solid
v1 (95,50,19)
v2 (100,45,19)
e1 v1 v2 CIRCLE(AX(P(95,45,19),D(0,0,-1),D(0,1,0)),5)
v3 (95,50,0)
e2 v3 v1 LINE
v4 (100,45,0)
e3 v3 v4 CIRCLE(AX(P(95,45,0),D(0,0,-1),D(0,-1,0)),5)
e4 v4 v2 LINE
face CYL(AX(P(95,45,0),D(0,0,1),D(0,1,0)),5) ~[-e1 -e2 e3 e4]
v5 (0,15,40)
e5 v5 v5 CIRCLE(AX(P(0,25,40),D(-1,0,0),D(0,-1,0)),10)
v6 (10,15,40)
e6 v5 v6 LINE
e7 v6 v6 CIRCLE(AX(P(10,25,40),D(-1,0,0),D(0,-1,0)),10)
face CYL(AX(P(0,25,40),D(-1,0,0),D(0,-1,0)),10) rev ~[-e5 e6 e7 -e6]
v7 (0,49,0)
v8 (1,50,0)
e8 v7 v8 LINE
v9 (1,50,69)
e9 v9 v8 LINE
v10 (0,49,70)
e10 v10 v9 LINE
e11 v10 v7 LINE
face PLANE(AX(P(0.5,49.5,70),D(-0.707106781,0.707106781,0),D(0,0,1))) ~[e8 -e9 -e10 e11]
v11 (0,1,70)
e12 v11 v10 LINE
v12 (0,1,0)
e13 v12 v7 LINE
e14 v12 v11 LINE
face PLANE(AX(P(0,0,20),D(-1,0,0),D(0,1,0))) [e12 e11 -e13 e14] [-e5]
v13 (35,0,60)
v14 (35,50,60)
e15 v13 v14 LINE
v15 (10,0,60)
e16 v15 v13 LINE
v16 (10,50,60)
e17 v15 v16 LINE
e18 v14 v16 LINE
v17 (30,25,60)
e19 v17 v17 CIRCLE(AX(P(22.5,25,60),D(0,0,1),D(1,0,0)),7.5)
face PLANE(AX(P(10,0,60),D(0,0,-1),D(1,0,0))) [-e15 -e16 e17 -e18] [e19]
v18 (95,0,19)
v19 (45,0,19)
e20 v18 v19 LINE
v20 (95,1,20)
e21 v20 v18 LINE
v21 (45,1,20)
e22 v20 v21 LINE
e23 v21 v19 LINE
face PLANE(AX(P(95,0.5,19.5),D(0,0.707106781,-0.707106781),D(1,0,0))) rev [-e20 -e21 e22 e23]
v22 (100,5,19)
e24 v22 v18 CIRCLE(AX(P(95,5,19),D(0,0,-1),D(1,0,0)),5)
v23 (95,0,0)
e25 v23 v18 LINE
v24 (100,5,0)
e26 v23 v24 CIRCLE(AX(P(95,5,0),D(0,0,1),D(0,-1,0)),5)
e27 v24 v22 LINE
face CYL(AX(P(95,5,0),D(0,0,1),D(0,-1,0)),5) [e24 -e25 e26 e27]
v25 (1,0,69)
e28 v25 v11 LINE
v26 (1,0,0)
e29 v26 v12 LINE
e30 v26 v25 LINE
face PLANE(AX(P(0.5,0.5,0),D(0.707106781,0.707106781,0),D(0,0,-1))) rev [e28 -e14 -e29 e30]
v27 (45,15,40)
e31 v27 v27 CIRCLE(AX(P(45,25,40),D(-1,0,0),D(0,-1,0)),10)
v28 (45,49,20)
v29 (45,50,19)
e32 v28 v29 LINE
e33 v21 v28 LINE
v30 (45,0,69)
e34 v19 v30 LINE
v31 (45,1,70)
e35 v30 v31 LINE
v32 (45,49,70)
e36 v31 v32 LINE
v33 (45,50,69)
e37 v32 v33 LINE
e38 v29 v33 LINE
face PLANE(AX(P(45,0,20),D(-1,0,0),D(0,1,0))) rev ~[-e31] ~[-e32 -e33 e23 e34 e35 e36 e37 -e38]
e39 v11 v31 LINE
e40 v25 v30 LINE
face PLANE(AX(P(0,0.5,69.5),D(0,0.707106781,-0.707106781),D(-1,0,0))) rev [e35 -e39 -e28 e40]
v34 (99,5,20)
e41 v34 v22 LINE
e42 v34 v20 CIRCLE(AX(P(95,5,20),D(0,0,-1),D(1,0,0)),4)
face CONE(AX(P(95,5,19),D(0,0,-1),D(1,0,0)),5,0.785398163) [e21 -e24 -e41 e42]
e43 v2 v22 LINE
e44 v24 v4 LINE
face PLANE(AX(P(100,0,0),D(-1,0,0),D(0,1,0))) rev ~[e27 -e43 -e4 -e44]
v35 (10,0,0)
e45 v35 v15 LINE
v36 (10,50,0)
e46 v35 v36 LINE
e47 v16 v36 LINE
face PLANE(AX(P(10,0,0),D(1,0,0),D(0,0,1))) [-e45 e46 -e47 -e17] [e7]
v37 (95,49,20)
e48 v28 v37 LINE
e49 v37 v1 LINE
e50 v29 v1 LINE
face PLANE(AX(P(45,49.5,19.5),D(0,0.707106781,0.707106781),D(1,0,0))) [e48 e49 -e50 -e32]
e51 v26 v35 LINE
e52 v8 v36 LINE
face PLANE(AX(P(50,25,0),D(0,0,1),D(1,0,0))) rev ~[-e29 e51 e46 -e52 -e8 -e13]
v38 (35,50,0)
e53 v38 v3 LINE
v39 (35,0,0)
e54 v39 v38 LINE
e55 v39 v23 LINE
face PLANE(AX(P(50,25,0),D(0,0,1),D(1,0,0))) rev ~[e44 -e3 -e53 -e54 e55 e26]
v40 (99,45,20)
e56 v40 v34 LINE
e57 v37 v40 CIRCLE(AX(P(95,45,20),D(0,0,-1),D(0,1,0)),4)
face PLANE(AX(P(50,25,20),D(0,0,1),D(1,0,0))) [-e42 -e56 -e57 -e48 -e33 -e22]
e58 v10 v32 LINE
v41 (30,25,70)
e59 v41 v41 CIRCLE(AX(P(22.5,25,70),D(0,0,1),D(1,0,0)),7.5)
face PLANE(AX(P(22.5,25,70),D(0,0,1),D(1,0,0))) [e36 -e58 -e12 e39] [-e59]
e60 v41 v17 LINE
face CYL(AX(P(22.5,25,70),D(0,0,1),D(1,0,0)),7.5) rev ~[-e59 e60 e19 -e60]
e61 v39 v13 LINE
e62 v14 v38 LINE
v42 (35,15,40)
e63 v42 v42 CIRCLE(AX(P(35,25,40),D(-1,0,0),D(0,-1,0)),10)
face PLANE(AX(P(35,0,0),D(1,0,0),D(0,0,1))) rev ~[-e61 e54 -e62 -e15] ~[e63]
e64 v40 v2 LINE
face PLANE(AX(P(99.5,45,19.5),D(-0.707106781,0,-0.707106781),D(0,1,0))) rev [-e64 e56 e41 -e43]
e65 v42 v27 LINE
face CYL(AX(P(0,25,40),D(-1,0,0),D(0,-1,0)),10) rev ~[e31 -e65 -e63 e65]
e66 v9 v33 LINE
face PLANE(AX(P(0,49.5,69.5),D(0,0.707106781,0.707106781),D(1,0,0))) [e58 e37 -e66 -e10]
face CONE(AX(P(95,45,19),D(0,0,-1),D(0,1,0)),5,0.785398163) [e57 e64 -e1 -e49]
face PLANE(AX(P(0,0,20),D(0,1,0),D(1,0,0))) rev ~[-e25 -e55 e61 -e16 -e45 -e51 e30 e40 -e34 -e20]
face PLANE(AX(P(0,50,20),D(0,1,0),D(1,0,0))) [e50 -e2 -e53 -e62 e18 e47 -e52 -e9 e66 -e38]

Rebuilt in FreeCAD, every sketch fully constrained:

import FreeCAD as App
import Part
import Sketcher

V = App.Vector


def edges_at(feature, points):
    """Names of the edges that pass closest to the given points."""
    edges = feature.Shape.Edges
    near = lambda p: min(range(len(edges)), key=lambda i: edges[i].distToShape(Part.Vertex(*p))[0])
    return sorted({f"Edge{near(p) + 1}" for p in points})

doc = App.newDocument("Part")
params = doc.addObject("Spreadsheet::Sheet", "Params")
for row, (alias, value) in enumerate([
    ("sketch1_width", "100 mm"),
    ("sketch1_height", "50 mm"),
    ("pad1_length", "20 mm"),
    ("sketch2_width", "45 mm"),
    ("sketch2_height", "50 mm"),
    ("pad2_length", "50 mm"),
    ("sketch3_width", "25 mm"),
    ("sketch3_height", "60 mm"),
    ("sketch4_diameter", "20 mm"),
    ("sketch5_diameter", "15 mm"),
    ("fillet_radius", "5 mm"),
    ("chamfer_size", "1 mm"),
], start=1):
    params.set(f"A{row}", alias)
    params.set(f"B{row}", "=" + value)
    params.setAlias(f"B{row}", alias)

body = doc.addObject("PartDesign::Body", "Body")

# Sketch on XY plane
sketch1 = body.newObject("Sketcher::SketchObject", "Sketch")
sketch1.AttachmentSupport = (doc.getObject("XY_Plane"), [""])
sketch1.MapMode = "FlatFace"
sketch1.addGeometry([
    Part.LineSegment(V(0, 50, 0), V(0, 0, 0)),
    Part.LineSegment(V(0, 0, 0), V(100, 0, 0)),
    Part.LineSegment(V(100, 0, 0), V(100, 50, 0)),
    Part.LineSegment(V(100, 50, 0), V(0, 50, 0)),
], False)
sketch1.addConstraint([
    Sketcher.Constraint("Coincident", 0, 2, 1, 1),
    Sketcher.Constraint("Coincident", 1, 2, 2, 1),
    Sketcher.Constraint("Coincident", 2, 2, 3, 1),
    Sketcher.Constraint("Coincident", 3, 2, 0, 1),
    Sketcher.Constraint("Vertical", 0),
    Sketcher.Constraint("Horizontal", 1),
    Sketcher.Constraint("Vertical", 2),
    Sketcher.Constraint("Horizontal", 3),
    Sketcher.Constraint("Coincident", 0, 2, -1, 1),
    Sketcher.Constraint("DistanceX", 1, 1, 1, 2, 100.0),
    Sketcher.Constraint("DistanceY", 0, 2, 0, 1, 50.0),
])
sketch1.setExpression("Constraints[9]", "Params.sketch1_width")
sketch1.setExpression("Constraints[10]", "Params.sketch1_height")
pad1 = body.newObject("PartDesign::Pad", "Pad")
pad1.Profile = sketch1
pad1.setExpression("Length", "Params.pad1_length")

# Sketch on XY plane
sketch2 = body.newObject("Sketcher::SketchObject", "Sketch001")
sketch2.AttachmentSupport = (doc.getObject("XY_Plane"), [""])
sketch2.MapMode = "FlatFace"
sketch2.AttachmentOffset = App.Placement(V(0, 0, 20), App.Rotation())
sketch2.addGeometry([
    Part.LineSegment(V(0, 50, 0), V(0, 0, 0)),
    Part.LineSegment(V(0, 0, 0), V(45, 0, 0)),
    Part.LineSegment(V(45, 0, 0), V(45, 50, 0)),
    Part.LineSegment(V(45, 50, 0), V(0, 50, 0)),
], False)
sketch2.addConstraint([
    Sketcher.Constraint("Coincident", 0, 2, 1, 1),
    Sketcher.Constraint("Coincident", 1, 2, 2, 1),
    Sketcher.Constraint("Coincident", 2, 2, 3, 1),
    Sketcher.Constraint("Coincident", 3, 2, 0, 1),
    Sketcher.Constraint("Vertical", 0),
    Sketcher.Constraint("Horizontal", 1),
    Sketcher.Constraint("Vertical", 2),
    Sketcher.Constraint("Horizontal", 3),
    Sketcher.Constraint("Coincident", 0, 2, -1, 1),
    Sketcher.Constraint("DistanceX", 1, 1, 1, 2, 45.0),
    Sketcher.Constraint("DistanceY", 0, 2, 0, 1, 50.0),
])
sketch2.setExpression("Constraints[9]", "Params.sketch2_width")
sketch2.setExpression("Constraints[10]", "Params.sketch2_height")
pad2 = body.newObject("PartDesign::Pad", "Pad001")
pad2.Profile = sketch2
pad2.setExpression("Length", "Params.pad2_length")

# Sketch on XZ plane
sketch3 = body.newObject("Sketcher::SketchObject", "Sketch002")
sketch3.AttachmentSupport = (doc.getObject("XZ_Plane"), [""])
sketch3.MapMode = "FlatFace"
sketch3.addGeometry([
    Part.LineSegment(V(10, 60, 0), V(10, 0, 0)),
    Part.LineSegment(V(10, 0, 0), V(35, 0, 0)),
    Part.LineSegment(V(35, 0, 0), V(35, 60, 0)),
    Part.LineSegment(V(35, 60, 0), V(10, 60, 0)),
], False)
sketch3.addConstraint([
    Sketcher.Constraint("Coincident", 0, 2, 1, 1),
    Sketcher.Constraint("Coincident", 1, 2, 2, 1),
    Sketcher.Constraint("Coincident", 2, 2, 3, 1),
    Sketcher.Constraint("Coincident", 3, 2, 0, 1),
    Sketcher.Constraint("Vertical", 0),
    Sketcher.Constraint("Horizontal", 1),
    Sketcher.Constraint("Vertical", 2),
    Sketcher.Constraint("Horizontal", 3),
    Sketcher.Constraint("PointOnObject", 0, 2, -1),
    Sketcher.Constraint("DistanceX", 1, 1, 1, 2, 25.0),
    Sketcher.Constraint("DistanceY", 0, 2, 0, 1, 60.0),
    Sketcher.Constraint("DistanceX", -1, 1, 0, 2, 10.0),
])
sketch3.setExpression("Constraints[9]", "Params.sketch3_width")
sketch3.setExpression("Constraints[10]", "Params.sketch3_height")
pocket1 = body.newObject("PartDesign::Pocket", "Pocket")
pocket1.Profile = sketch3
pocket1.Type = "ThroughAll"

# Sketch on YZ plane
sketch4 = body.newObject("Sketcher::SketchObject", "Sketch003")
sketch4.AttachmentSupport = (doc.getObject("YZ_Plane"), [""])
sketch4.MapMode = "FlatFace"
sketch4.addGeometry(Part.Circle(V(25, 40, 0), V(0, 0, 1), 10), False)
sketch4.addConstraint([
    Sketcher.Constraint("Diameter", 0, 20.0),
    Sketcher.Constraint("DistanceX", -1, 1, 0, 3, 25.0),
    Sketcher.Constraint("DistanceY", -1, 1, 0, 3, 40.0),
])
sketch4.setExpression("Constraints[0]", "Params.sketch4_diameter")
pocket2 = body.newObject("PartDesign::Pocket", "Pocket001")
pocket2.Profile = sketch4
pocket2.Type = "ThroughAll"
pocket2.Reversed = True

# Sketch on XY plane
sketch5 = body.newObject("Sketcher::SketchObject", "Sketch004")
sketch5.AttachmentSupport = (doc.getObject("XY_Plane"), [""])
sketch5.MapMode = "FlatFace"
sketch5.AttachmentOffset = App.Placement(V(0, 0, 70), App.Rotation())
sketch5.addGeometry(Part.Circle(V(22, 25, 0), V(0, 0, 1), 8), False)
sketch5.addConstraint([
    Sketcher.Constraint("Diameter", 0, 15.0),
    Sketcher.Constraint("DistanceY", -1, 1, 0, 3, 25.0),
    Sketcher.Constraint("DistanceX", -1, 1, 0, 3, 22.5),
])
sketch5.setExpression("Constraints[0]", "Params.sketch5_diameter")
pocket3 = body.newObject("PartDesign::Pocket", "Pocket002")
pocket3.Profile = sketch5
pocket3.Type = "ThroughAll"
doc.recompute()

fillet = body.newObject("PartDesign::Fillet", "Fillet")
fillet.Base = (pocket3, edges_at(pocket3, [(100, 0, 10), (100, 50, 10)]))
fillet.setExpression("Radius", "Params.fillet_radius")
doc.recompute()

chamfer = body.newObject("PartDesign::Chamfer", "Chamfer")
chamfer.Base = (fillet, edges_at(fillet, [
    (0, 0, 35),
    (22.5, 0, 70),
    (0, 50, 35),
    (22.5, 50, 70),
    (70, 50, 20),
    (70, 0, 20),
]))
chamfer.setExpression("Size", "Params.chamfer_size")

doc.recompute()
